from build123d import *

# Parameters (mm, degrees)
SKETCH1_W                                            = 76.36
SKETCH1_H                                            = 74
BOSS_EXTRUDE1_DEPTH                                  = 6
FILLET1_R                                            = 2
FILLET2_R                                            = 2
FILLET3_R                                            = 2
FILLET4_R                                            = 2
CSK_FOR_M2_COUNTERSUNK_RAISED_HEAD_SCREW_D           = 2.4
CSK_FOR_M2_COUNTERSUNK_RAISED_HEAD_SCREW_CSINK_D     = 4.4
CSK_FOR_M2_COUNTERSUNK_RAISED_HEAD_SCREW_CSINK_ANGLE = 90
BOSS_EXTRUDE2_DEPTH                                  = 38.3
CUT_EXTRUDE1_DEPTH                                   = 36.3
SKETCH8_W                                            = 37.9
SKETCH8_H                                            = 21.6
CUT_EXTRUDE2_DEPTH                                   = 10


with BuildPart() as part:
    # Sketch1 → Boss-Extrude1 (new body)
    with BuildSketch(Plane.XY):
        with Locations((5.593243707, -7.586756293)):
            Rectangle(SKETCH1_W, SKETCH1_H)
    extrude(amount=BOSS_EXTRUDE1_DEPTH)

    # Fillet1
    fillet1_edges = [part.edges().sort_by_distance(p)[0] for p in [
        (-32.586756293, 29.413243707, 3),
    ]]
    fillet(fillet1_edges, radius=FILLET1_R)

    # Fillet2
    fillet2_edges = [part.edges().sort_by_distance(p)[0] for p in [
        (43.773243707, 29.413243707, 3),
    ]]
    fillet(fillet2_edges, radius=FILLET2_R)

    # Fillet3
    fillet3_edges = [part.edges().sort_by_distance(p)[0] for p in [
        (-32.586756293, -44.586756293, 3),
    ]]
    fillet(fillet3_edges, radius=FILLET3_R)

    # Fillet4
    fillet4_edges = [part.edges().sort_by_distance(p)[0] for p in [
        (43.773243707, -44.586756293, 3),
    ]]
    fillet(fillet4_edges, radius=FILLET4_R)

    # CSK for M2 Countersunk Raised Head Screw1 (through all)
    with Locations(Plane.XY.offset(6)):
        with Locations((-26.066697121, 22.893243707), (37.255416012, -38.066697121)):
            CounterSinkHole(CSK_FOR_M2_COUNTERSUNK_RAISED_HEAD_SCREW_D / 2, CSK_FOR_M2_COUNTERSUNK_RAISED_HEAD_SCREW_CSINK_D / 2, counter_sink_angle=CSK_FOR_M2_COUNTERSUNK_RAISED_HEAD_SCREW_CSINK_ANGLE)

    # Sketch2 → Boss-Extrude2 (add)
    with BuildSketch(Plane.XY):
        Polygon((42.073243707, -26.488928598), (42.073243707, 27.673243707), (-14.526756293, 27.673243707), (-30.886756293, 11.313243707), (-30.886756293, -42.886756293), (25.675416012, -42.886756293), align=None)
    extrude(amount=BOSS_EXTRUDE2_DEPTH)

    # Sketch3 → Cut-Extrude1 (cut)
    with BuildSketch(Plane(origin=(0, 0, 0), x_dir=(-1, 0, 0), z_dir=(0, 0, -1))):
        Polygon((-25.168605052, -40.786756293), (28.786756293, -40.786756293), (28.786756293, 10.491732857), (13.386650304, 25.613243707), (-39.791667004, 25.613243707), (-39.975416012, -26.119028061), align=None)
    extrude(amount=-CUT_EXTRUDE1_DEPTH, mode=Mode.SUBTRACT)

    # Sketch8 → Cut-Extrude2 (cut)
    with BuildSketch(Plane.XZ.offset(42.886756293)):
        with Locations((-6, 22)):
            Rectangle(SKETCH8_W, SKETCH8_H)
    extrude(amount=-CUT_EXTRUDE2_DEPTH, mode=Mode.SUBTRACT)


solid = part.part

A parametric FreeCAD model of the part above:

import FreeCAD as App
import Part
import Sketcher
from FreeCAD import Vector
Q = App.Units.Quantity


def edges_at(feature, points):
    """Names of the edges that pass closest to the given points."""
    edges = feature.Shape.Edges
    near = lambda p: min(range(len(edges)), key=lambda i: edges[i].distToShape(Part.Vertex(*p))[0])
    return sorted({f"Edge{near(p) + 1}" for p in points})

doc = App.newDocument("Part")
params = doc.addObject("Spreadsheet::Sheet", "Params")
for row, (alias, value) in enumerate([
    ("sketch1_height", "74 mm"),
    ("sketch1_width", "76.36 mm"),
    ("pad1_length", "6 mm"),
    ("fillet_radius", "2 mm"),
    ("fillet2_radius", "2 mm"),
    ("fillet3_radius", "2 mm"),
    ("fillet4_radius", "2 mm"),
    ("sketch2_diameter", "2.4 mm"),
    ("hole_diameter", "2.4 mm"),
    ("hole_csink_diameter", "4.4 mm"),
    ("sketch3_width", "56.6 mm"),
    ("sketch3_height", "54.2 mm"),
    ("pad2_length", "38.3 mm"),
    ("pocket1_length", "36.3 mm"),
    ("sketch5_width", "37.9 mm"),
    ("sketch5_height", "21.6 mm"),
    ("pocket2_length", "10 mm"),
], start=1):
    params.set(f"A{row}", alias)
    params.set(f"B{row}", "=" + value)
    params.setAlias(f"B{row}", alias)

body = doc.addObject("PartDesign::Body", "Body")

# Sketch on XY plane
sketch1 = body.newObject("Sketcher::SketchObject", "Sketch")
sketch1.AttachmentSupport = (doc.getObject("XY_Plane"), [""])
sketch1.MapMode = "FlatFace"
sketch1.addGeometry([
    Part.LineSegment(Vector(-32.586756, 29.413244, 0), Vector(-32.586756, -44.586756, 0)),
    Part.LineSegment(Vector(-32.586756, -44.586756, 0), Vector(43.773244, -44.586756, 0)),
    Part.LineSegment(Vector(43.773244, -44.586756, 0), Vector(43.773244, 29.413244, 0)),
    Part.LineSegment(Vector(43.773244, 29.413244, 0), Vector(-32.586756, 29.413244, 0)),
], False)
sketch1.addConstraint([
    Sketcher.Constraint("Coincident", 0, 2, 1, 1),
    Sketcher.Constraint("Coincident", 1, 2, 2, 1),
    Sketcher.Constraint("Coincident", 2, 2, 3, 1),
    Sketcher.Constraint("Coincident", 3, 2, 0, 1),
    Sketcher.Constraint("Vertical", 0),
    Sketcher.Constraint("Horizontal", 1),
    Sketcher.Constraint("Vertical", 2),
    Sketcher.Constraint("Horizontal", 3),
    Sketcher.Constraint("DistanceY", 0, 2, 0, 1, Q("74 mm")),
    Sketcher.Constraint("DistanceX", 1, 1, 1, 2, Q("76.36 mm")),
    Sketcher.Constraint("DistanceX", 0, 2, -1, 1, Q("32.586756 mm")),
    Sketcher.Constraint("DistanceY", 0, 2, -1, 1, Q("44.586756 mm")),
])
sketch1.setExpression("Constraints[8]", "Params.sketch1_height")
sketch1.setExpression("Constraints[9]", "Params.sketch1_width")
pad1 = body.newObject("PartDesign::Pad", "Pad")
pad1.Profile = sketch1
pad1.setExpression("Length", "Params.pad1_length")
doc.recompute()

fillet = body.newObject("PartDesign::Fillet", "Fillet")
fillet.Base = (pad1, edges_at(pad1, [(-32.587, 29.413, 3)]))
fillet.setExpression("Radius", "Params.fillet_radius")
doc.recompute()

fillet2 = body.newObject("PartDesign::Fillet", "Fillet001")
fillet2.Base = (fillet, edges_at(fillet, [(43.773, 29.413, 3)]))
fillet2.setExpression("Radius", "Params.fillet2_radius")
doc.recompute()

fillet3 = body.newObject("PartDesign::Fillet", "Fillet002")
fillet3.Base = (fillet2, edges_at(fillet2, [(-32.587, -44.587, 3)]))
fillet3.setExpression("Radius", "Params.fillet3_radius")
doc.recompute()

fillet4 = body.newObject("PartDesign::Fillet", "Fillet003")
fillet4.Base = (fillet3, edges_at(fillet3, [(43.773, -44.587, 3)]))
fillet4.setExpression("Radius", "Params.fillet4_radius")

# Sketch on XY plane
sketch2 = body.newObject("Sketcher::SketchObject", "Sketch001")
sketch2.AttachmentSupport = (doc.getObject("XY_Plane"), [""])
sketch2.MapMode = "FlatFace"
sketch2.AttachmentOffset = App.Placement(Vector(0, 0, 6), App.Rotation())
sketch2.addGeometry([
    Part.Circle(Vector(-26.066697, 22.893244, 0), Vector(0, 0, 1), 1.2),
    Part.Circle(Vector(37.255416, -38.066697, 0), Vector(0, 0, 1), 1.2),
], False)
sketch2.addConstraint([
    Sketcher.Constraint("Equal", 0, 1),
    Sketcher.Constraint("Diameter", 0, Q("2.4 mm")),
    Sketcher.Constraint("DistanceY", 1, 3, 0, 3, Q("60.959941 mm")),
    Sketcher.Constraint("DistanceX", 0, 3, -1, 1, Q("26.066697 mm")),
    Sketcher.Constraint("DistanceY", -1, 1, 0, 3, Q("22.893244 mm")),
    Sketcher.Constraint("DistanceX", -1, 1, 1, 3, Q("37.255416 mm")),
])
sketch2.setExpression("Constraints[1]", "Params.sketch2_diameter")
doc.recompute()
hole = body.newObject("PartDesign::Hole", "Hole")
hole.Profile = sketch2
hole.ThreadType = "None"
hole.setExpression("Diameter", "Params.hole_diameter")
hole.DepthType = "ThroughAll"
hole.HoleCutType = "Countersink"
hole.setExpression("HoleCutDiameter", "Params.hole_csink_diameter")
hole.HoleCutCountersinkAngle = 90

# Sketch on XY plane
sketch3 = body.newObject("Sketcher::SketchObject", "Sketch002")
sketch3.AttachmentSupport = (doc.getObject("XY_Plane"), [""])
sketch3.MapMode = "FlatFace"
sketch3.addGeometry([
    Part.LineSegment(Vector(42.073244, -26.488929, 0), Vector(42.073244, 27.673244, 0)),  # 0
    Part.LineSegment(Vector(42.073244, 27.673244, 0), Vector(-14.526756, 27.673244, 0)),  # 1
    Part.LineSegment(Vector(-14.526756, 27.673244, 0), Vector(-30.886756, 11.313244, 0)),  # 2
    Part.LineSegment(Vector(-30.886756, 11.313244, 0), Vector(-30.886756, -42.886756, 0)),  # 3
    Part.LineSegment(Vector(-30.886756, -42.886756, 0), Vector(25.675416, -42.886756, 0)),  # 4
    Part.LineSegment(Vector(25.675416, -42.886756, 0), Vector(42.073244, -26.488929, 0)),  # 5
], False)
sketch3.addConstraint([
    Sketcher.Constraint("Coincident", 0, 2, 1, 1),
    Sketcher.Constraint("Coincident", 1, 2, 2, 1),
    Sketcher.Constraint("Coincident", 2, 2, 3, 1),
    Sketcher.Constraint("Coincident", 3, 2, 4, 1),
    Sketcher.Constraint("Coincident", 4, 2, 5, 1),
    Sketcher.Constraint("Coincident", 5, 2, 0, 1),
    Sketcher.Constraint("Vertical", 0),
    Sketcher.Constraint("Horizontal", 1),
    Sketcher.Constraint("Vertical", 3),
    Sketcher.Constraint("Horizontal", 4),
    Sketcher.Constraint("Parallel", 2, 5),
    Sketcher.Constraint("Angle", 2, Q("-135 deg")),
    Sketcher.Constraint("DistanceX", 1, 2, 1, 1, Q("56.6 mm")),
    Sketcher.Constraint("DistanceY", 3, 2, 3, 1, Q("54.2 mm")),
    Sketcher.Constraint("DistanceX", 2, 2, 1, 2, Q("16.36 mm")),
    Sketcher.Constraint("Distance", 5, Q("23.19003 mm")),
    Sketcher.Constraint("DistanceY", 5, 2, -1, 1, Q("26.488929 mm")),
    Sketcher.Constraint("DistanceX", -1, 1, 0, 2, Q("42.073244 mm")),
])
sketch3.setExpression("Constraints[12]", "Params.sketch3_width")
sketch3.setExpression("Constraints[13]", "Params.sketch3_height")
pad2 = body.newObject("PartDesign::Pad", "Pad001")
pad2.Profile = sketch3
pad2.setExpression("Length", "Params.pad2_length")

# Sketch on XY plane
sketch4 = body.newObject("Sketcher::SketchObject", "Sketch003")
sketch4.AttachmentSupport = (doc.getObject("XY_Plane"), [""])
sketch4.MapMode = "FlatFace"
sketch4.addGeometry([
    Part.LineSegment(Vector(25.168605, -40.786756, 0), Vector(-28.786756, -40.786756, 0)),  # 0
    Part.LineSegment(Vector(-28.786756, -40.786756, 0), Vector(-28.786756, 10.491733, 0)),  # 1
    Part.LineSegment(Vector(-28.786756, 10.491733, 0), Vector(-13.38665, 25.613244, 0)),  # 2
    Part.LineSegment(Vector(-13.38665, 25.613244, 0), Vector(39.791667, 25.613244, 0)),  # 3
    Part.LineSegment(Vector(39.791667, 25.613244, 0), Vector(39.975416, -26.119028, 0)),  # 4
    Part.LineSegment(Vector(39.975416, -26.119028, 0), Vector(25.168605, -40.786756, 0)),  # 5
], False)
sketch4.addConstraint([
    Sketcher.Constraint("Coincident", 0, 2, 1, 1),
    Sketcher.Constraint("Coincident", 1, 2, 2, 1),
    Sketcher.Constraint("Coincident", 2, 2, 3, 1),
    Sketcher.Constraint("Coincident", 3, 2, 4, 1),
    Sketcher.Constraint("Coincident", 4, 2, 5, 1),
    Sketcher.Constraint("Coincident", 5, 2, 0, 1),
    Sketcher.Constraint("Horizontal", 0),
    Sketcher.Constraint("Vertical", 1),
    Sketcher.Constraint("Horizontal", 3),
    Sketcher.Constraint("DistanceY", 0, 2, 2, 2, Q("66.4 mm")),
    Sketcher.Constraint("Distance", 4, Q("51.732598 mm")),
    Sketcher.Constraint("DistanceX", 0, 2, 0, 1, Q("53.955361 mm")),
    Sketcher.Constraint("DistanceY", 1, 1, 1, 2, Q("51.278489 mm")),
    Sketcher.Constraint("Distance", 2, Q("21.582941 mm")),
    Sketcher.Constraint("Distance", 5, Q("20.841879 mm")),
    Sketcher.Constraint("DistanceX", 3, 1, 3, 2, Q("53.178317 mm")),
    Sketcher.Constraint("DistanceX", 2, 2, -1, 1, Q("13.38665 mm")),
    Sketcher.Constraint("DistanceY", 4, 2, -1, 1, Q("26.119028 mm")),
])
pocket1 = body.newObject("PartDesign::Pocket", "Pocket")
pocket1.Profile = sketch4
pocket1.setExpression("Length", "Params.pocket1_length")
pocket1.Reversed = True

# Sketch on XZ plane
sketch5 = body.newObject("Sketcher::SketchObject", "Sketch004")
sketch5.AttachmentSupport = (doc.getObject("XZ_Plane"), [""])
sketch5.MapMode = "FlatFace"
sketch5.AttachmentOffset = App.Placement(Vector(0, 0, 42.886756), App.Rotation())
sketch5.addGeometry([
    Part.LineSegment(Vector(-24.95, 32.8, 0), Vector(-24.95, 11.2, 0)),
    Part.LineSegment(Vector(-24.95, 11.2, 0), Vector(12.95, 11.2, 0)),
    Part.LineSegment(Vector(12.95, 11.2, 0), Vector(12.95, 32.8, 0)),
    Part.LineSegment(Vector(12.95, 32.8, 0), Vector(-24.95, 32.8, 0)),
], False)
sketch5.addConstraint([
    Sketcher.Constraint("Coincident", 0, 2, 1, 1),
    Sketcher.Constraint("Coincident", 1, 2, 2, 1),
    Sketcher.Constraint("Coincident", 2, 2, 3, 1),
    Sketcher.Constraint("Coincident", 3, 2, 0, 1),
    Sketcher.Constraint("Vertical", 0),
    Sketcher.Constraint("Horizontal", 1),
    Sketcher.Constraint("Vertical", 2),
    Sketcher.Constraint("Horizontal", 3),
    Sketcher.Constraint("DistanceX", 1, 1, 1, 2, Q("37.9 mm")),
    Sketcher.Constraint("DistanceY", 0, 2, 0, 1, Q("21.6 mm")),
    Sketcher.Constraint("DistanceY", -1, 1, 0, 2, Q("11.2 mm")),
    Sketcher.Constraint("DistanceX", 0, 2, -1, 1, Q("24.95 mm")),
])
sketch5.setExpression("Constraints[8]", "Params.sketch5_width")
sketch5.setExpression("Constraints[9]", "Params.sketch5_height")
pocket2 = body.newObject("PartDesign::Pocket", "Pocket001")
pocket2.Profile = sketch5
pocket2.setExpression("Length", "Params.pocket2_length")

doc.recompute()
